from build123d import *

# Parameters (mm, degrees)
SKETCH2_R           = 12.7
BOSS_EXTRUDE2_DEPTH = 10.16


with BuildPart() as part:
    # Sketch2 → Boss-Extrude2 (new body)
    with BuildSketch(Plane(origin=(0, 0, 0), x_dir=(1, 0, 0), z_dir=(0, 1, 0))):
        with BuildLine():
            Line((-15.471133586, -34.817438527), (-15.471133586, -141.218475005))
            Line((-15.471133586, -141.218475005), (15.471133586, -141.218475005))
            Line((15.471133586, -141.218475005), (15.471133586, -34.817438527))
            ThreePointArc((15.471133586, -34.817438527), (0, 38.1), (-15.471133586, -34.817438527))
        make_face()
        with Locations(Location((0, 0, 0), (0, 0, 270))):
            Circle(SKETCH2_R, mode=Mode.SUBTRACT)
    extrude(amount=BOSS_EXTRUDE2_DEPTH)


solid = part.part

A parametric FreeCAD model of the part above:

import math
import FreeCAD as App
import Part
import Sketcher
Q = App.Units.Quantity

doc = App.newDocument("Part")
body = doc.addObject("PartDesign::Body", "Body")

# Sketch on XZ plane
sketch1 = doc.addObject("Sketcher::SketchObject", "Sketch")
body.addObject(sketch1)
sketch1.AttachmentSupport = (doc.XZ_Plane, [""])
sketch1.MapMode = "FlatFace"
sketch1.addGeometry([
    Part.LineSegment(App.Vector(-15, 35, 0), App.Vector(-15, 141, 0)),  # 0
    Part.LineSegment(App.Vector(-15, 141, 0), App.Vector(15, 141, 0)),  # 1
    Part.LineSegment(App.Vector(15, 141, 0), App.Vector(15, 35, 0)),  # 2
    Part.ArcOfCircle(Part.Circle(App.Vector(0, 0, 0), App.Vector(0, 0, 1), 38), math.radians(114), math.radians(426)),  # 3
    Part.Circle(App.Vector(0, 0, 0), App.Vector(0, 0, 1), 13),  # 4
], False)
sketch1.addConstraint([
    Sketcher.Constraint("Coincident", 0, 2, 1, 1),
    Sketcher.Constraint("Coincident", 1, 2, 2, 1),
    Sketcher.Constraint("Coincident", 2, 2, 3, 2),
    Sketcher.Constraint("Coincident", 3, 1, 0, 1),
    Sketcher.Constraint("Vertical", 0),
    Sketcher.Constraint("Horizontal", 1),
    Sketcher.Constraint("Vertical", 2),
    Sketcher.Constraint("Coincident", 3, 3, -1, 1),
    Sketcher.Constraint("Coincident", 4, 3, -1, 1),
    Sketcher.Constraint("Horizontal", 2, 2, 3, 1),
    Sketcher.Constraint("Diameter", 4, Q("1 in")),
    Sketcher.Constraint("Radius", 3, Q("1.5 in")),
    Sketcher.Constraint("DistanceX", 1, 1, 1, 2, Q("30.942267 mm")),
    Sketcher.Constraint("DistanceY", 0, 1, 0, 2, Q("106.401036 mm")),
])
pad1 = doc.addObject("PartDesign::Pad", "Pad")
body.addObject(pad1)
pad1.Profile = sketch1
pad1.Length = Q("0.4 in")
pad1.Reversed = True

doc.recompute()
